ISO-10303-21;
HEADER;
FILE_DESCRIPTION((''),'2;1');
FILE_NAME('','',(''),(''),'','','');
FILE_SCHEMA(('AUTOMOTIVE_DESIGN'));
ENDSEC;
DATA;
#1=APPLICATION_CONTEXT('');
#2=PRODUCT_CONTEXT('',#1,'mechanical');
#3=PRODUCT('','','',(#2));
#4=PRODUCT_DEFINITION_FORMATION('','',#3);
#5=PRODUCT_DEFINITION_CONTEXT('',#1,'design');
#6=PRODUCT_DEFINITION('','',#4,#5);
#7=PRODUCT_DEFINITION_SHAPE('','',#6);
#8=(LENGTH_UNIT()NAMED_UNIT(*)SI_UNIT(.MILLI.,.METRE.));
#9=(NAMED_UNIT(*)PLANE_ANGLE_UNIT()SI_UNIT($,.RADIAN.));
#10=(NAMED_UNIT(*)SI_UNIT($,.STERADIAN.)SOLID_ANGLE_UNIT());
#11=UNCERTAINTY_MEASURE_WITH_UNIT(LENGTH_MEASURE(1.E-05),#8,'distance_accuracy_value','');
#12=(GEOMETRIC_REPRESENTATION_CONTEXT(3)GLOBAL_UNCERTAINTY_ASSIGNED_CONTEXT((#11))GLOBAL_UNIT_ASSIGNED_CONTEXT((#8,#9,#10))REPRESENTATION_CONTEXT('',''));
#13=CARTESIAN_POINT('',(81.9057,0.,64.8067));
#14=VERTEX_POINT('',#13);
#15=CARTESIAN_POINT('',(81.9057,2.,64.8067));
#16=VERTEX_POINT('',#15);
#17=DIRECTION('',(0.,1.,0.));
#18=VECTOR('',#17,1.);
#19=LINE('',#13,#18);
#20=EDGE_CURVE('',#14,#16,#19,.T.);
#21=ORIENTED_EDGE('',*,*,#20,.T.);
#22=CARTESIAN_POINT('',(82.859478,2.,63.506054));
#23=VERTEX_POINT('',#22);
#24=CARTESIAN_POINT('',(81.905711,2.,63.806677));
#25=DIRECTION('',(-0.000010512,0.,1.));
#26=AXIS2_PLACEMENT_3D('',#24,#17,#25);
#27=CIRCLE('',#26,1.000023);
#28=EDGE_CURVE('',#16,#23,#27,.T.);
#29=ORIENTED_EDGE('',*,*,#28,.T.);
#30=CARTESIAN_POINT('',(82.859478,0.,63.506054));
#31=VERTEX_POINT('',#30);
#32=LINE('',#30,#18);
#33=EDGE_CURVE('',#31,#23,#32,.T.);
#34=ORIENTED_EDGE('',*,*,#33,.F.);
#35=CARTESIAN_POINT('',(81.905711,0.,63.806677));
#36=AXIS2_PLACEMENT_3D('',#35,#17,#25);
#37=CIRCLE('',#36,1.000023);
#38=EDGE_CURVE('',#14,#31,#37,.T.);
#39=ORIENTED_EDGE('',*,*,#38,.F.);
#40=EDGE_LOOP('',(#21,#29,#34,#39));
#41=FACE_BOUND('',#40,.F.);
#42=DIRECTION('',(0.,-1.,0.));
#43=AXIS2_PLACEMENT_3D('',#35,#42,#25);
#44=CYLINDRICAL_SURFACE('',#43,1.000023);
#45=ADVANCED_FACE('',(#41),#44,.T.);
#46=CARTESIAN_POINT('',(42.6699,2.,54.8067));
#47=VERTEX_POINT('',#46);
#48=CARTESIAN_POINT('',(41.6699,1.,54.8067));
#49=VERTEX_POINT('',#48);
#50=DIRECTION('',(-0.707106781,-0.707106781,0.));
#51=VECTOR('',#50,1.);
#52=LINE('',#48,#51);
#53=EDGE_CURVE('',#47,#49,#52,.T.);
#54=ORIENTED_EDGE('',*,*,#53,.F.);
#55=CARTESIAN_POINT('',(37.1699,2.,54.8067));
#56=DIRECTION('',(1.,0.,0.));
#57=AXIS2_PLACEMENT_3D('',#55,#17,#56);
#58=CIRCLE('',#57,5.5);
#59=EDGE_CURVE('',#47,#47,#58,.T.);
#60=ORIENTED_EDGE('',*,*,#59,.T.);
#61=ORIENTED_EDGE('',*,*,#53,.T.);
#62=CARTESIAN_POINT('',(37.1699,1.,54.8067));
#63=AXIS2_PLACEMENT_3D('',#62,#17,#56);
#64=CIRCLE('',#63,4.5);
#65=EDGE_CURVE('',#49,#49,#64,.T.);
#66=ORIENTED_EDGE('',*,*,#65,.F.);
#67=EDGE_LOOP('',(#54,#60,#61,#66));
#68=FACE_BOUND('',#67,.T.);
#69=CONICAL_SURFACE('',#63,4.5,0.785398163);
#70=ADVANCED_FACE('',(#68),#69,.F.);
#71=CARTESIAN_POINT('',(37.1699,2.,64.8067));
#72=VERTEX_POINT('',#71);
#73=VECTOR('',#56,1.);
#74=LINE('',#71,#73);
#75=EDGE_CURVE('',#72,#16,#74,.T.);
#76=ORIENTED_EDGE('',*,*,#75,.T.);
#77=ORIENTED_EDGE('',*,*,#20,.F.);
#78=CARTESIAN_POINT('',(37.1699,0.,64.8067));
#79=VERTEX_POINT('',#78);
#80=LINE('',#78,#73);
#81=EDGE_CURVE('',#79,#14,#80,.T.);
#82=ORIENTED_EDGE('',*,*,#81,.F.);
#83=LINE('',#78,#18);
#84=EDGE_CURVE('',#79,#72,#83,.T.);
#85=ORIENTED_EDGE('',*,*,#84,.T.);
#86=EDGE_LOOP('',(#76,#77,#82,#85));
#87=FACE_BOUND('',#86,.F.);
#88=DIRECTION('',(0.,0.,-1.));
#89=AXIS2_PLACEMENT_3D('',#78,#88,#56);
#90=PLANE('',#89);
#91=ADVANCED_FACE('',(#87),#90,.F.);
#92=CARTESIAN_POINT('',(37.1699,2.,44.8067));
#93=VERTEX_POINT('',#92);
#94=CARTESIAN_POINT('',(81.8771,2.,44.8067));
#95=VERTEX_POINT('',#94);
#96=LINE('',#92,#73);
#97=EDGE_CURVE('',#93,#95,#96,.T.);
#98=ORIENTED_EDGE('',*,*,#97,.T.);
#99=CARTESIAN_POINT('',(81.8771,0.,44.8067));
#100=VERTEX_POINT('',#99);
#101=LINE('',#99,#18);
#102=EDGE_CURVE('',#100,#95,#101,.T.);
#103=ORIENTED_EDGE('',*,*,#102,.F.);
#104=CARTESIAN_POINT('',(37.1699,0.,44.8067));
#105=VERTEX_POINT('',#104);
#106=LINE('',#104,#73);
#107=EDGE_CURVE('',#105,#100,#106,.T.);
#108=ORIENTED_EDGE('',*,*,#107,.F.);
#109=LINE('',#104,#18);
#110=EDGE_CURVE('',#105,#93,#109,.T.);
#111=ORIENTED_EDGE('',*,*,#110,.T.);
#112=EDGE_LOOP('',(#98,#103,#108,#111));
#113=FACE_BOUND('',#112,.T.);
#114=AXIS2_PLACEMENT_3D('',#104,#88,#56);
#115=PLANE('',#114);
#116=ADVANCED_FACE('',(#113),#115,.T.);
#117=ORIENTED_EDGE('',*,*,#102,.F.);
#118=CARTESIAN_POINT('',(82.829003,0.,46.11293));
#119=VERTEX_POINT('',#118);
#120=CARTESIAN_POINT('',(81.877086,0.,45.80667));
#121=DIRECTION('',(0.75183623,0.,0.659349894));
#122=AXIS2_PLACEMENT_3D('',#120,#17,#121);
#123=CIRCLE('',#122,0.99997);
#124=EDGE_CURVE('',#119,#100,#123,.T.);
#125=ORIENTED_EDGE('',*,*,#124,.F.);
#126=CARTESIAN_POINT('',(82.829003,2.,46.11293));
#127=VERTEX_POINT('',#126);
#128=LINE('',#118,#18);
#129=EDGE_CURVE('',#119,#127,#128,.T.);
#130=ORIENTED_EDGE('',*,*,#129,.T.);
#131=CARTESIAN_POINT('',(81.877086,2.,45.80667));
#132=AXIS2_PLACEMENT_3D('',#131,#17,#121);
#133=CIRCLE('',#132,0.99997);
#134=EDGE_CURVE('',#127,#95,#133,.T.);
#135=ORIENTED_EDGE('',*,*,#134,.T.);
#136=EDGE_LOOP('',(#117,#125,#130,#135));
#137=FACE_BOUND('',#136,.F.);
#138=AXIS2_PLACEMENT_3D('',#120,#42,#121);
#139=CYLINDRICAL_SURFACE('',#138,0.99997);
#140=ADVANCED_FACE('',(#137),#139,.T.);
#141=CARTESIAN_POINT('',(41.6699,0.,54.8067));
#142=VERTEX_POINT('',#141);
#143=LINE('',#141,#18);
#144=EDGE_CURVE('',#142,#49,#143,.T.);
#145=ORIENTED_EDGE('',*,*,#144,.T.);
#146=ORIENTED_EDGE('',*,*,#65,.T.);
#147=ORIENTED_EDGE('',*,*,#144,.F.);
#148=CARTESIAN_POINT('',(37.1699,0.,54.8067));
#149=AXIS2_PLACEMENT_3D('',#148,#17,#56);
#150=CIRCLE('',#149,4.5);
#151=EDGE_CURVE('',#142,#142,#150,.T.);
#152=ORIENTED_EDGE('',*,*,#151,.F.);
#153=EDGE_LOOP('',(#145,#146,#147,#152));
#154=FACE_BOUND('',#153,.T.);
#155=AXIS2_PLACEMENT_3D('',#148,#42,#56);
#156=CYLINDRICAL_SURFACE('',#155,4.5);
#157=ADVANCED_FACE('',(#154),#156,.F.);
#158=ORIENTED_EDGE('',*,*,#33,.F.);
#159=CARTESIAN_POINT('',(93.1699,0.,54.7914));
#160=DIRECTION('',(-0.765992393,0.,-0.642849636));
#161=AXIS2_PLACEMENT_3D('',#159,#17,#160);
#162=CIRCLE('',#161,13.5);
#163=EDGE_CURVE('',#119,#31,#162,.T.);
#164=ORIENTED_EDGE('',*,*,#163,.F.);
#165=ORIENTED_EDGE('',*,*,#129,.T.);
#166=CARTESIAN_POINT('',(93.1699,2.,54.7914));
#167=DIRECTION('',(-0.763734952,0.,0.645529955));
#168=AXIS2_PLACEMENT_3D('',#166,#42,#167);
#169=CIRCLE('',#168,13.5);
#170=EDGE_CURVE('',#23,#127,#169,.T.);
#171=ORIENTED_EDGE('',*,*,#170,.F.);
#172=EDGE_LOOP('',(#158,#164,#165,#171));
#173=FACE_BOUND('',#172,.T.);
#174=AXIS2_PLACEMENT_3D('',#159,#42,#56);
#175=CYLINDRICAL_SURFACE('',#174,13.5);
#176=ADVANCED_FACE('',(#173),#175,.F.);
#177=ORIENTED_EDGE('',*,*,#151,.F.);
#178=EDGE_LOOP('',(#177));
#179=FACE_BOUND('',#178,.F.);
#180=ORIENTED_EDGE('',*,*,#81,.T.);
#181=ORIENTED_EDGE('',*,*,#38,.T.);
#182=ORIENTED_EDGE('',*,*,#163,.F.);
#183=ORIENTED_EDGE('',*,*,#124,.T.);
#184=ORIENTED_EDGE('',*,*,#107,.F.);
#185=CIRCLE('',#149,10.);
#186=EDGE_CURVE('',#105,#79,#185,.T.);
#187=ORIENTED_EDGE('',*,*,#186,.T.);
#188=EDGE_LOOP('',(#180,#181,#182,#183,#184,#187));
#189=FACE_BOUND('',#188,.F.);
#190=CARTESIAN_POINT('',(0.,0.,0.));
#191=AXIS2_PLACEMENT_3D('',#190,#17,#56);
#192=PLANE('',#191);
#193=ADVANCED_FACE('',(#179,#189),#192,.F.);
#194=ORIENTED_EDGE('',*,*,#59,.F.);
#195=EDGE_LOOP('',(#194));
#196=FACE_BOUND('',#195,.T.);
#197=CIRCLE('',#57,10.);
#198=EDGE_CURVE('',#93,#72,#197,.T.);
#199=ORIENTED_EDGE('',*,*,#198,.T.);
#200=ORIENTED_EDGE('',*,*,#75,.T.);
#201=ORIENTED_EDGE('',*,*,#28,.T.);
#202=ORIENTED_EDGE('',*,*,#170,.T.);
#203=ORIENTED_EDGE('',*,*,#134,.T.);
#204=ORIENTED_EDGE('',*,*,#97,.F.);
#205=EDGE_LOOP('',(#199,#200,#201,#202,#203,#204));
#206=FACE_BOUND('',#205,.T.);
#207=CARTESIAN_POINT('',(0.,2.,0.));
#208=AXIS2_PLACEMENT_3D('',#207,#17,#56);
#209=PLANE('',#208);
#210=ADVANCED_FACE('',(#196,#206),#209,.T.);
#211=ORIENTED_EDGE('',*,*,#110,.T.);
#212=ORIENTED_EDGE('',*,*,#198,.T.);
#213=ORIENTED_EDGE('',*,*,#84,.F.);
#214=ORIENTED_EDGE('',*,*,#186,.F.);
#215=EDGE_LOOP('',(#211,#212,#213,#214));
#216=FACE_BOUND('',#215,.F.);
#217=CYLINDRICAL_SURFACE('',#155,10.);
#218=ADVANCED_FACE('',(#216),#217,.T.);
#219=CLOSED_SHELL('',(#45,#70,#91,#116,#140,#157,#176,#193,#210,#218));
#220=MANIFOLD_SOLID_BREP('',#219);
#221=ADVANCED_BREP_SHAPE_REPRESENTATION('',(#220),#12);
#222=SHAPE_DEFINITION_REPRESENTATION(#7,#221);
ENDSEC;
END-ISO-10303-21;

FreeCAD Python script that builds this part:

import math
import FreeCAD as App
import Part
import Sketcher

V = App.Vector
Q = App.Units.Quantity


def edges_at(feature, points):
    """Names of the edges that pass closest to the given points."""
    edges = feature.Shape.Edges
    near = lambda p: min(range(len(edges)), key=lambda i: edges[i].distToShape(Part.Vertex(*p))[0])
    return sorted({f"Edge{near(p) + 1}" for p in points})

doc = App.newDocument("Part")
params = doc.addObject("Spreadsheet::Sheet", "Params")
for row, (alias, value) in enumerate([
    ("sketch1_diameter", "9 mm"),
    ("sketch1_radius", "10 mm"),
    ("sketch1_radius2", "1 mm"),
    ("sketch1_radius3", "13.5 mm"),
    ("pad1_length", "2 mm"),
    ("chamfer_size", "1 mm"),
], start=1):
    params.set(f"A{row}", alias)
    params.set(f"B{row}", "=" + value)
    params.setAlias(f"B{row}", alias)

body = doc.addObject("PartDesign::Body", "Body")

# Sketch on XZ plane
sketch1 = body.newObject("Sketcher::SketchObject", "Sketch")
sketch1.AttachmentSupport = (doc.getObject("XZ_Plane"), [""])
sketch1.MapMode = "FlatFace"
sketch1.addGeometry([
    Part.ArcOfCircle(Part.Circle(V(37.2, 54.8, 0), V(0, 0, 1), 10), math.radians(90), math.radians(270)),  # 0
    Part.LineSegment(V(37.2, 64.8, 0), V(81.9, 64.8, 0)),  # 1
    Part.ArcOfCircle(Part.Circle(V(81.9, 63.8, 0), V(0, 0, 1), 1), math.radians(-17), math.radians(90)),  # 2
    Part.ArcOfCircle(Part.Circle(V(93.2, 54.8, 0), V(0, 0, 1), 13.5), math.radians(140), math.radians(220)),  # 3
    Part.ArcOfCircle(Part.Circle(V(81.9, 45.8, 0), V(0, 0, 1), 1), math.radians(-90), math.radians(18)),  # 4
    Part.LineSegment(V(81.9, 44.8, 0), V(37.2, 44.8, 0)),  # 5
    Part.Circle(V(37.2, 54.8, 0), V(0, 0, 1), 4.5),  # 6
], False)
sketch1.addConstraint([
    Sketcher.Constraint("Tangent", 0, 1, 1, 1),
    Sketcher.Constraint("Tangent", 1, 2, 2, 2),
    Sketcher.Constraint("Coincident", 2, 1, 3, 1),
    Sketcher.Constraint("Coincident", 3, 2, 4, 2),
    Sketcher.Constraint("Tangent", 4, 1, 5, 1),
    Sketcher.Constraint("Tangent", 5, 2, 0, 2),
    Sketcher.Constraint("Horizontal", 1),
    Sketcher.Constraint("Horizontal", 5),
    Sketcher.Constraint("Coincident", 6, 3, 0, 3),
    Sketcher.Constraint("Equal", 2, 4),
    Sketcher.Constraint("Diameter", 6, Q("9 mm")),
    Sketcher.Constraint("Radius", 0, Q("10 mm")),
    Sketcher.Constraint("Radius", 2, Q("1 mm")),
    Sketcher.Constraint("Radius", 3, Q("13.5 mm")),
    Sketcher.Constraint("DistanceX", 0, 3, 3, 3, Q("56 mm")),
    Sketcher.Constraint("DistanceX", -1, 1, 0, 3, Q("37.17 mm")),
    Sketcher.Constraint("DistanceX", 1, 1, 1, 2, Q("44.7358 mm")),
    Sketcher.Constraint("DistanceX", 5, 2, 5, 1, Q("44.7072 mm")),
    Sketcher.Constraint("DistanceY", -1, 1, 2, 1, Q("63.506 mm")),
    Sketcher.Constraint("DistanceX", -1, 1, 3, 2, Q("82.829 mm")),
])
sketch1.setExpression("Constraints[10]", "Params.sketch1_diameter")
sketch1.setExpression("Constraints[11]", "Params.sketch1_radius")
sketch1.setExpression("Constraints[12]", "Params.sketch1_radius2")
sketch1.setExpression("Constraints[13]", "Params.sketch1_radius3")
pad1 = body.newObject("PartDesign::Pad", "Pad")
pad1.Profile = sketch1
pad1.setExpression("Length", "Params.pad1_length")
pad1.Reversed = True
doc.recompute()

chamfer = body.newObject("PartDesign::Chamfer", "Chamfer")
chamfer.Base = (pad1, edges_at(pad1, [(32.974, 2, 53.179)]))
chamfer.setExpression("Size", "Params.chamfer_size")

doc.recompute()
